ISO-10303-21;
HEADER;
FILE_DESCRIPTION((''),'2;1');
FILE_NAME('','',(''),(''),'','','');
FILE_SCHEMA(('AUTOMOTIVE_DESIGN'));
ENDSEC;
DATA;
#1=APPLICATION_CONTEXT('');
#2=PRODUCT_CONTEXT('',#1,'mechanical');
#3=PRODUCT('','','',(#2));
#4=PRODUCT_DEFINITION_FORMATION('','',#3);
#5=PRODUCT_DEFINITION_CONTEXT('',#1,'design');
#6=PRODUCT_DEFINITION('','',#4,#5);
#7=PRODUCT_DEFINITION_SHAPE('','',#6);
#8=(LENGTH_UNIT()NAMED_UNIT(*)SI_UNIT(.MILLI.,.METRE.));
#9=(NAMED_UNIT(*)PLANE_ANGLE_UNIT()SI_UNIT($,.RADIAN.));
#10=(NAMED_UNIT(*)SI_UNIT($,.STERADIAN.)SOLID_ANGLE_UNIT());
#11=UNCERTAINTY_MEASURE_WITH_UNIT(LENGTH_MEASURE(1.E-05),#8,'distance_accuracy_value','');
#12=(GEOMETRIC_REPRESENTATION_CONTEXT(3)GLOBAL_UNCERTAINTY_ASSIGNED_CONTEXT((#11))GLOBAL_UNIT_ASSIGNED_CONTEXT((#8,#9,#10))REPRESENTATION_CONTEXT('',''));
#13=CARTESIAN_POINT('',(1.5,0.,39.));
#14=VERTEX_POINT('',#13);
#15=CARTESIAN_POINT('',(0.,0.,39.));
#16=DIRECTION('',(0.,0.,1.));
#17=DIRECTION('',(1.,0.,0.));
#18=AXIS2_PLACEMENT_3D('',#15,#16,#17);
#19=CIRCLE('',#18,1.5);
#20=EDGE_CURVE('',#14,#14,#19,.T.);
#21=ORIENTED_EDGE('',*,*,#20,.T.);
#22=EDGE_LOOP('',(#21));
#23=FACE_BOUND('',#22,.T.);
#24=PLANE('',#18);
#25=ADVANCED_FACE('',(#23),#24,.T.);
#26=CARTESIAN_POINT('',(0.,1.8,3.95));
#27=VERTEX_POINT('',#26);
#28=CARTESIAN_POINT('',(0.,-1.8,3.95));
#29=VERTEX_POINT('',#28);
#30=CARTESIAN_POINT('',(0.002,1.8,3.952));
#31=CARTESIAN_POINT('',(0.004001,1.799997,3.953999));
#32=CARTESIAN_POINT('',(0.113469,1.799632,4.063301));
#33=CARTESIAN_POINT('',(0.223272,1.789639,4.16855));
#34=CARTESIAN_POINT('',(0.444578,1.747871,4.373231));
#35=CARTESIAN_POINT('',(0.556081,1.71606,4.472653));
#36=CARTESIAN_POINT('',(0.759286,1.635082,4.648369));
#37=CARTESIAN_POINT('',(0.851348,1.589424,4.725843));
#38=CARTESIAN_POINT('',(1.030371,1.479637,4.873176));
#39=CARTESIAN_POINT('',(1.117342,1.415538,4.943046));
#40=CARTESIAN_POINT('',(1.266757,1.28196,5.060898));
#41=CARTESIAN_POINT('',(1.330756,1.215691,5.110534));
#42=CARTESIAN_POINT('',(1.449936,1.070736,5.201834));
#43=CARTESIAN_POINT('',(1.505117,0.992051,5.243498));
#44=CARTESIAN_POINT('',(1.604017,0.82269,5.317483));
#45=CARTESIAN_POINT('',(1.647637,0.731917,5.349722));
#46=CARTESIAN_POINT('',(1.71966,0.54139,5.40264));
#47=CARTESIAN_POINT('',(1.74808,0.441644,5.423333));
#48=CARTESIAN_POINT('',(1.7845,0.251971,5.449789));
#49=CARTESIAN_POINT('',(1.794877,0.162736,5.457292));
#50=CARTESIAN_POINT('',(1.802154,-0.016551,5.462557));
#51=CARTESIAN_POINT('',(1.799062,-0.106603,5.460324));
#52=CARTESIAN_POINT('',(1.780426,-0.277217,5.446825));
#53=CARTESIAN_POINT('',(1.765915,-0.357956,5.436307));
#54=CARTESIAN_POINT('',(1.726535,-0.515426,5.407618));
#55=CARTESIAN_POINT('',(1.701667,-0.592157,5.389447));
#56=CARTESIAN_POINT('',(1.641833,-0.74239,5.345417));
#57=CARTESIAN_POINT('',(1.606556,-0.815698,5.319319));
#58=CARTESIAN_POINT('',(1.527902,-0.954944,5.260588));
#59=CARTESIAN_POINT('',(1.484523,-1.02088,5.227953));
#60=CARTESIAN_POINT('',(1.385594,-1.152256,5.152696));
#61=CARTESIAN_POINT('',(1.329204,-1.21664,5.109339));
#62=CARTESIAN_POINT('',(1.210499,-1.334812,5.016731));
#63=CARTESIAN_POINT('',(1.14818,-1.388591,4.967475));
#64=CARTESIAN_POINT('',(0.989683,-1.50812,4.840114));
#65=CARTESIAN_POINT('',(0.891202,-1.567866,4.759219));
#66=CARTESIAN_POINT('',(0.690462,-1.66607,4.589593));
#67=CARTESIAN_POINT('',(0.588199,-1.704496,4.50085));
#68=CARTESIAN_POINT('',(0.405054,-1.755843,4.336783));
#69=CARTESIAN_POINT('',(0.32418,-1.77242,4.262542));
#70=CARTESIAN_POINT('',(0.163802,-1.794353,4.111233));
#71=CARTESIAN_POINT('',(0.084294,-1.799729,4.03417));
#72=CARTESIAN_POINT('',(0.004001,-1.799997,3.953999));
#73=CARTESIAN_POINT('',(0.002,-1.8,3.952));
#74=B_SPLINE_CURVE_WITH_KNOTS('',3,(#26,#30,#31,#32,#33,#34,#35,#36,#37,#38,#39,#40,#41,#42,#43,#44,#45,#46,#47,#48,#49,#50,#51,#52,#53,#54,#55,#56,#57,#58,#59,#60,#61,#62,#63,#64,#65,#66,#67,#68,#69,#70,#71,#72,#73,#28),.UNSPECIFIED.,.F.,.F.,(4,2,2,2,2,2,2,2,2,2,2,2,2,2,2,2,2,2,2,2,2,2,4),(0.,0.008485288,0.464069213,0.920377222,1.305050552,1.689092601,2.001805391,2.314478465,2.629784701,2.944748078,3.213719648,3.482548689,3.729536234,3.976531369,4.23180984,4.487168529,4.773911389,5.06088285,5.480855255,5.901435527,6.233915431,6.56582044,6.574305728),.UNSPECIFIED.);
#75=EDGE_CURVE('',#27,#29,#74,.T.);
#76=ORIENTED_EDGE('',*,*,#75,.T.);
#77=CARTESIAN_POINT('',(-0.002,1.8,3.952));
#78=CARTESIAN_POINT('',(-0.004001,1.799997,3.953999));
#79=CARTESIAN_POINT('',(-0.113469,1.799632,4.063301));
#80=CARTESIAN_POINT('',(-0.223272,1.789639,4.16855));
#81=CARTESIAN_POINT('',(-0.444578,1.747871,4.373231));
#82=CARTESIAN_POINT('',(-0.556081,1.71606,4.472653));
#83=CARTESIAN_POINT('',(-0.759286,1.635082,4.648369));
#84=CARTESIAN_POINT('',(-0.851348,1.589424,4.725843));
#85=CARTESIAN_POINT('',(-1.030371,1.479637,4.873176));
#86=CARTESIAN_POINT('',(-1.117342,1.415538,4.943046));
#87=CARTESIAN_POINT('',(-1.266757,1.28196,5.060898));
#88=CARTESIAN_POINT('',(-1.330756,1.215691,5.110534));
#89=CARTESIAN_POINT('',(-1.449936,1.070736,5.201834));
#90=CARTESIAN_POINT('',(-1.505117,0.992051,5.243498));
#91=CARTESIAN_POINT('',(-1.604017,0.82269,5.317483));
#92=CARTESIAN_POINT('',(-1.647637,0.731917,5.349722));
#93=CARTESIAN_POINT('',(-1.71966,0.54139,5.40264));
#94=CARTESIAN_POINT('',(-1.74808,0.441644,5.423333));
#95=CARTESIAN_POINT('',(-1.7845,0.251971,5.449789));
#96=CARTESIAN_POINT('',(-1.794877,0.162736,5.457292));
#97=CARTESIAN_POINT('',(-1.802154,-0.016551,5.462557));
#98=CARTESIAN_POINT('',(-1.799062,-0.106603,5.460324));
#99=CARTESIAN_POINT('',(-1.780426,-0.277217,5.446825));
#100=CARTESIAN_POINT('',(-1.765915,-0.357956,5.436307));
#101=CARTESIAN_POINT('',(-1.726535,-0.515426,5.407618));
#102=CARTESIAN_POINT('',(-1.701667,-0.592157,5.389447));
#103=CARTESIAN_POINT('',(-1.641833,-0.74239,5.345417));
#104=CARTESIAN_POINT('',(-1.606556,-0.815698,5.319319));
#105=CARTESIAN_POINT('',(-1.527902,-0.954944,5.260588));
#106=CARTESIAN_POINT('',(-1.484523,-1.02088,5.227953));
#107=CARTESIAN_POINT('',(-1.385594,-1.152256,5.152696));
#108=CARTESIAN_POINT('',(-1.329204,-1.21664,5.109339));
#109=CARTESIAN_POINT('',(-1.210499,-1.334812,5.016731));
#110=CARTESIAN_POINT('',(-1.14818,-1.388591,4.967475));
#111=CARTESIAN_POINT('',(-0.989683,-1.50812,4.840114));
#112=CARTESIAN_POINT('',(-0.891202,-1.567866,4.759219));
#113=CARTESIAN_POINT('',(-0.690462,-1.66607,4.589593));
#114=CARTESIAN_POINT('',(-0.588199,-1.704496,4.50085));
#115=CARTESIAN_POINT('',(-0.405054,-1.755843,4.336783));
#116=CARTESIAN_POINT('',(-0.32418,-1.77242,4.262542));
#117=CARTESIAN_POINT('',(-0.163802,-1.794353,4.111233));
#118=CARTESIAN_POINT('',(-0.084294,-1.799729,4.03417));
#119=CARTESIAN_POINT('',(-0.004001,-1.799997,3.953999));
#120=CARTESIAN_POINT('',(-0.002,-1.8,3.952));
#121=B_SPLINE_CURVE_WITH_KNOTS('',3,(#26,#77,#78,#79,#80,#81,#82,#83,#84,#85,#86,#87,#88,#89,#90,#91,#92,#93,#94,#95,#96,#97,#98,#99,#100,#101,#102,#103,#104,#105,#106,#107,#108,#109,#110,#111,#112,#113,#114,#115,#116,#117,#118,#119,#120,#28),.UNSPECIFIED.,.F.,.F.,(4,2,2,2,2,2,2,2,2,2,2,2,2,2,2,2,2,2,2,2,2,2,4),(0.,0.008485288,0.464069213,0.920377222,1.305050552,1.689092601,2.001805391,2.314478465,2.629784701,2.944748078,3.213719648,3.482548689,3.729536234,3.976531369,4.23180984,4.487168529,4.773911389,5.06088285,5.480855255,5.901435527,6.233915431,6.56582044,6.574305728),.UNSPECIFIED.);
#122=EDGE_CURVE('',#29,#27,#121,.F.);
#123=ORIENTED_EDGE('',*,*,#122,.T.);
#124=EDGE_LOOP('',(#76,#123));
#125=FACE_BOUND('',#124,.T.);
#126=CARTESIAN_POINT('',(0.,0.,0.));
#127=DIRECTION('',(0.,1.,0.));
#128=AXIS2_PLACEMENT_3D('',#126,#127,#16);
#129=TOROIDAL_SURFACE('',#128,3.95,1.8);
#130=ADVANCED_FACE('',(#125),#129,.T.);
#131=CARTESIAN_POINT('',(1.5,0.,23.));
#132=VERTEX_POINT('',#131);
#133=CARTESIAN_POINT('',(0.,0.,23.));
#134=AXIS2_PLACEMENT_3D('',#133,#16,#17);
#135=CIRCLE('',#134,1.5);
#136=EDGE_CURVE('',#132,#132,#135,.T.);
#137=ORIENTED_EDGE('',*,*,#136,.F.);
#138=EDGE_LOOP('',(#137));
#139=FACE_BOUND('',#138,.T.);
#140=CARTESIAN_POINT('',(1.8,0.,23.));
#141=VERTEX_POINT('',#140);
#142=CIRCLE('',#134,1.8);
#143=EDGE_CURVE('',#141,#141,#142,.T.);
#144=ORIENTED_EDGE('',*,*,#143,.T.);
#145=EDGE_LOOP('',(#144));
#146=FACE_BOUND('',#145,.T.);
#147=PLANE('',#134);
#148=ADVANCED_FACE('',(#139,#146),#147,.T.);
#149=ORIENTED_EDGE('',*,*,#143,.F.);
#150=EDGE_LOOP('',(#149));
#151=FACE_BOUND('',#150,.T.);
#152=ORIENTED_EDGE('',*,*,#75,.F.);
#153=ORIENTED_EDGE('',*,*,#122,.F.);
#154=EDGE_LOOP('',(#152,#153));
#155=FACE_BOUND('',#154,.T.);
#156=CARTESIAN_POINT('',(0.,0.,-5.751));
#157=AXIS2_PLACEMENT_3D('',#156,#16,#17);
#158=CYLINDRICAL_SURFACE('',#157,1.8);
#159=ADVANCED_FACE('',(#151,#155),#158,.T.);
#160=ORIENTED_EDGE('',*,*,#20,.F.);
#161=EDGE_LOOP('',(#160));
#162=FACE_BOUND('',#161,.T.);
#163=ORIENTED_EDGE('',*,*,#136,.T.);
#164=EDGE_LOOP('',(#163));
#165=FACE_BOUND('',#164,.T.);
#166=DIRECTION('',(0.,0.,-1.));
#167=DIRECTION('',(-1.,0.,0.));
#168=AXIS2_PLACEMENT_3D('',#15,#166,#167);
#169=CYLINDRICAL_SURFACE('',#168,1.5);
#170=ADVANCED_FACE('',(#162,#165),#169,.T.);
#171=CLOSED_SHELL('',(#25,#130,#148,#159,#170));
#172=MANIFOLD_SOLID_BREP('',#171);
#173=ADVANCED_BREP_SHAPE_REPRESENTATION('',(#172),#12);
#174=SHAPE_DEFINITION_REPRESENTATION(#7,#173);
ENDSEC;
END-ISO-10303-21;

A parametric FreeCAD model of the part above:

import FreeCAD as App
import Part
import Sketcher
from FreeCAD import Vector

doc = App.newDocument("Part")
body = doc.addObject("PartDesign::Body", "Body")

# Sketch on XY plane
sketch1 = body.newObject("Sketcher::SketchObject", "Sketch")
sketch1.AttachmentSupport = (doc.getObject("XY_Plane"), [""])
sketch1.MapMode = "FlatFace"
sketch1.addGeometry(Part.Circle(Vector(-3.95, 0, 0), Vector(0, 0, 1), 1.8), False)
sketch1.addConstraint([
    Sketcher.Constraint("PointOnObject", 0, 3, -1),
    Sketcher.Constraint("Diameter", 0, 3.6),
    Sketcher.Constraint("DistanceX", 0, 3, -1, 1, 3.95),
])
revolution = body.newObject("PartDesign::Revolution", "Revolution")
revolution.Profile = sketch1
revolution.ReferenceAxis = (sketch1, ["V_Axis"])
revolution.Angle = 360

# Sketch on XY plane
sketch2 = body.newObject("Sketcher::SketchObject", "Sketch001")
sketch2.AttachmentSupport = (doc.getObject("XY_Plane"), [""])
sketch2.MapMode = "FlatFace"
sketch2.AttachmentOffset = App.Placement(Vector(0, 0, 23), App.Rotation())
sketch2.addGeometry(Part.Circle(Vector(0, 0, 0), Vector(0, 0, 1), 1.8), False)
sketch2.addConstraint([
    Sketcher.Constraint("Coincident", 0, 3, -1, 1),
    Sketcher.Constraint("Diameter", 0, 3.6),
])
pad1 = body.newObject("PartDesign::Pad", "Pad")
pad1.Profile = sketch2
pad1.Length = 19.05
pad1.Reversed = True

# Sketch on XY plane
sketch3 = body.newObject("Sketcher::SketchObject", "Sketch002")
sketch3.AttachmentSupport = (doc.getObject("XY_Plane"), [""])
sketch3.MapMode = "FlatFace"
sketch3.AttachmentOffset = App.Placement(Vector(0, 0, 23), App.Rotation())
sketch3.addGeometry(Part.Circle(Vector(0, 0, 0), Vector(0, 0, 1), 1.5), False)
sketch3.addConstraint([
    Sketcher.Constraint("Coincident", 0, 3, -1, 1),
    Sketcher.Constraint("Diameter", 0, 3.0),
])
pad2 = body.newObject("PartDesign::Pad", "Pad001")
pad2.Profile = sketch3
pad2.Length = 16

doc.recompute()
